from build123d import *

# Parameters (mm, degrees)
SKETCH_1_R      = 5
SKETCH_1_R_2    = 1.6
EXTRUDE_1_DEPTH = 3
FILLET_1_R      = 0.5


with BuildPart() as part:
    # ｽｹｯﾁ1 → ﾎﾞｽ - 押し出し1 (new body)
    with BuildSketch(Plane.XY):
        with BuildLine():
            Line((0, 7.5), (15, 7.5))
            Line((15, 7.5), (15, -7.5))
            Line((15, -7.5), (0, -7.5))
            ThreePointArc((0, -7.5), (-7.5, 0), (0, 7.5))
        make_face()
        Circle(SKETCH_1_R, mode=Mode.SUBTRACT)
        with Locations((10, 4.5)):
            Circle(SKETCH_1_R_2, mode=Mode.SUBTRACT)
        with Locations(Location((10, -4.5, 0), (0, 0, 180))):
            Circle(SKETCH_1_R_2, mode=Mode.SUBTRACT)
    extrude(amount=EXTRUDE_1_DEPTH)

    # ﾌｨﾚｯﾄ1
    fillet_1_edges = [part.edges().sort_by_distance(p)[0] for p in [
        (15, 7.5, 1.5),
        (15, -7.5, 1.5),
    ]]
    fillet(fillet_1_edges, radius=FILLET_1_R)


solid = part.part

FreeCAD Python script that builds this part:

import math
import FreeCAD as App
import Part
import Sketcher
from FreeCAD import Vector
Q = App.Units.Quantity


def edges_at(feature, points):
    """Names of the edges that pass closest to the given points."""
    edges = feature.Shape.Edges
    near = lambda p: min(range(len(edges)), key=lambda i: edges[i].distToShape(Part.Vertex(*p))[0])
    return sorted({f"Edge{near(p) + 1}" for p in points})

doc = App.newDocument("Part")
body = doc.addObject("PartDesign::Body", "Body")

# Sketch on XY plane
sketch1 = body.newObject("Sketcher::SketchObject", "Sketch")
sketch1.AttachmentSupport = (doc.getObject("XY_Plane"), [""])
sketch1.MapMode = "FlatFace"
sketch1.addGeometry([
    Part.LineSegment(Vector(15, 7.5, 0), Vector(0, 7.5, 0)),  # 0
    Part.ArcOfCircle(Part.Circle(Vector(0, 0, 0), Vector(0, 0, 1), 7.5), math.radians(90), math.radians(270)),  # 1
    Part.LineSegment(Vector(0, -7.5, 0), Vector(15, -7.5, 0)),  # 2
    Part.LineSegment(Vector(15, -7.5, 0), Vector(15, 7.5, 0)),  # 3
    Part.Circle(Vector(10, -4.5, 0), Vector(0, 0, 1), 1.6),  # 4
    Part.Circle(Vector(10, 4.5, 0), Vector(0, 0, 1), 1.6),  # 5
    Part.Circle(Vector(0, 0, 0), Vector(0, 0, 1), 5),  # 6
], False)
sketch1.addConstraint([
    Sketcher.Constraint("Tangent", 0, 2, 1, 1),
    Sketcher.Constraint("Tangent", 1, 2, 2, 1),
    Sketcher.Constraint("Coincident", 2, 2, 3, 1),
    Sketcher.Constraint("Coincident", 3, 2, 0, 1),
    Sketcher.Constraint("Horizontal", 0),
    Sketcher.Constraint("Horizontal", 2),
    Sketcher.Constraint("Vertical", 3),
    Sketcher.Constraint("Coincident", 1, 3, -1, 1),
    Sketcher.Constraint("Coincident", 6, 3, -1, 1),
    Sketcher.Constraint("Equal", 4, 5),
    Sketcher.Constraint("Symmetric", 4, 3, 5, 3, -1),
    Sketcher.Constraint("Equal", 2, 3),
    Sketcher.Constraint("Diameter", 6, Q("10 mm")),
    Sketcher.Constraint("Diameter", 4, Q("3.2 mm")),
    Sketcher.Constraint("Radius", 1, Q("7.5 mm")),
    Sketcher.Constraint("DistanceX", -1, 1, 4, 3, Q("10 mm")),
    Sketcher.Constraint("DistanceY", 4, 3, 5, 3, Q("9 mm")),
])
pad1 = body.newObject("PartDesign::Pad", "Pad")
pad1.Profile = sketch1
pad1.Length = 3
doc.recompute()

fillet = body.newObject("PartDesign::Fillet", "Fillet")
fillet.Base = (pad1, edges_at(pad1, [(15, 7.5, 1.5), (15, -7.5, 1.5)]))
fillet.Radius = 0.5

doc.recompute()
